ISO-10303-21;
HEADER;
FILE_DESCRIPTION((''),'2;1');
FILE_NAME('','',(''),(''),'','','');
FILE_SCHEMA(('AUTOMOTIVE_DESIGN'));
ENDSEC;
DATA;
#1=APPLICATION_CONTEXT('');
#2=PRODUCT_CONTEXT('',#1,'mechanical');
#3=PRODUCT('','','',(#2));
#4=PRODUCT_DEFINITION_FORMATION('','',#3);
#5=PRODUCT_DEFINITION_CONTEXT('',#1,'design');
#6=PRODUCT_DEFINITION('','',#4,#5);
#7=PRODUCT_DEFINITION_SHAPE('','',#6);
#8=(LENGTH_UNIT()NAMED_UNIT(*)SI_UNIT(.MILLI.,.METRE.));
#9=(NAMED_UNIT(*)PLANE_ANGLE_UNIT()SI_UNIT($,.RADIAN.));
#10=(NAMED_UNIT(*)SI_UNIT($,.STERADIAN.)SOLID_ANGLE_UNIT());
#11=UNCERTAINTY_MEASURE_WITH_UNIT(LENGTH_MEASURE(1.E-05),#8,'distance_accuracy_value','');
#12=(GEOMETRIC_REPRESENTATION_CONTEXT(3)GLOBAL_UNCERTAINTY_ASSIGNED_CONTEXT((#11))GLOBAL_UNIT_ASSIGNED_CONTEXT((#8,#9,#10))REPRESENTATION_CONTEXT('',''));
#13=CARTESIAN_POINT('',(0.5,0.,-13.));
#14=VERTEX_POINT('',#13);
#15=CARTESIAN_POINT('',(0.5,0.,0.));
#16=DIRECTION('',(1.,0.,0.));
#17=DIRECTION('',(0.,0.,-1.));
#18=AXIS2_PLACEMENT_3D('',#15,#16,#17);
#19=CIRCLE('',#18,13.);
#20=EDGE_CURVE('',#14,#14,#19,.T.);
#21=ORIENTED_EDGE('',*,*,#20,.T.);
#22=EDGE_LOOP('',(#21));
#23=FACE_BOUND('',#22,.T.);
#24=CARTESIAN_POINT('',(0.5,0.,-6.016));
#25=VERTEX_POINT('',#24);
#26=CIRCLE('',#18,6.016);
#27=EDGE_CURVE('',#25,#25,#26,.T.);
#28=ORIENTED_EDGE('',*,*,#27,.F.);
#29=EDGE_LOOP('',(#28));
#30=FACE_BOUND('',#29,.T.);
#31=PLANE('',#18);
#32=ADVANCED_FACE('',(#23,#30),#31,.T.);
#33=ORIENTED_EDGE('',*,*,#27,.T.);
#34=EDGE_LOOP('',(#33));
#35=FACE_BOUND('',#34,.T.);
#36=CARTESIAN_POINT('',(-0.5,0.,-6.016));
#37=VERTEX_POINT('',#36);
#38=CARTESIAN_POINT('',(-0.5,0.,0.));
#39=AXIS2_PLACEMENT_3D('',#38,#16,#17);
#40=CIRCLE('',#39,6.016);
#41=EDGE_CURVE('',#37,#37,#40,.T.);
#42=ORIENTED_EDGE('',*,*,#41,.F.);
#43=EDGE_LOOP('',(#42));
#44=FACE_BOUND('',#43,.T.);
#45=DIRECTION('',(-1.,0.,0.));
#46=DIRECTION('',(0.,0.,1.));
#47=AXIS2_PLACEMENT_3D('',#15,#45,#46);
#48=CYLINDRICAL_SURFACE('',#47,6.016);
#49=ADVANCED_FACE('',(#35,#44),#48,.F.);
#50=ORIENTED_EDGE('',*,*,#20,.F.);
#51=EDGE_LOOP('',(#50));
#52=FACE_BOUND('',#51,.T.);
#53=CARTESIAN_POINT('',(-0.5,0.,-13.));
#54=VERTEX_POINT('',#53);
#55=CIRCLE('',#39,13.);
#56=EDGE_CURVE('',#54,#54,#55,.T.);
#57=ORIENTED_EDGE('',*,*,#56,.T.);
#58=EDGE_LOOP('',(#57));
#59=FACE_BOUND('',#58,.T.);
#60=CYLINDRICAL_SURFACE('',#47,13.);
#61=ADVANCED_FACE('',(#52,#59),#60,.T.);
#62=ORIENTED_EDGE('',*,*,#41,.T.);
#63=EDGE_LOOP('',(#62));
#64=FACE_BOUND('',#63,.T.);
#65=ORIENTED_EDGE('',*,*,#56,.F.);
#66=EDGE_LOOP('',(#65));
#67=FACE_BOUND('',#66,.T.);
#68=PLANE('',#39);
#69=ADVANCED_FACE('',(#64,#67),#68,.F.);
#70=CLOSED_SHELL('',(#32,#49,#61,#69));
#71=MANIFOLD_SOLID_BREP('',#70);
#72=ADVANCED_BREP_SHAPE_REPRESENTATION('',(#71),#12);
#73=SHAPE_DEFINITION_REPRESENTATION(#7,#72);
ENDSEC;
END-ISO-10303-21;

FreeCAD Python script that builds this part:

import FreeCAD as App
import Part
import Sketcher

doc = App.newDocument("Part")
body = doc.addObject("PartDesign::Body", "Body")

# Sketch on YZ plane
sketch1 = doc.addObject("Sketcher::SketchObject", "Sketch")
body.addObject(sketch1)
sketch1.AttachmentSupport = (doc.YZ_Plane, [""])
sketch1.MapMode = "FlatFace"
sketch1.addGeometry(Part.Circle(App.Vector(0, 0, 0), App.Vector(0, 0, 1), 13), False)
sketch1.addGeometry(Part.Circle(App.Vector(0, 0, 0), App.Vector(0, 0, 1), 6), False)
sketch1.addConstraint(Sketcher.Constraint("Coincident", 0, 3, -1, 1))
sketch1.addConstraint(Sketcher.Constraint("Coincident", 1, 3, -1, 1))
sketch1.addConstraint(Sketcher.Constraint("Diameter", 0, 26.0))
sketch1.addConstraint(Sketcher.Constraint("Diameter", 1, 12.032))
pad1 = doc.addObject("PartDesign::Pad", "Pad")
body.addObject(pad1)
pad1.Profile = sketch1
pad1.Type = "TwoLengths"
pad1.Length = 0.5
pad1.Length2 = 0.5

doc.recompute()
